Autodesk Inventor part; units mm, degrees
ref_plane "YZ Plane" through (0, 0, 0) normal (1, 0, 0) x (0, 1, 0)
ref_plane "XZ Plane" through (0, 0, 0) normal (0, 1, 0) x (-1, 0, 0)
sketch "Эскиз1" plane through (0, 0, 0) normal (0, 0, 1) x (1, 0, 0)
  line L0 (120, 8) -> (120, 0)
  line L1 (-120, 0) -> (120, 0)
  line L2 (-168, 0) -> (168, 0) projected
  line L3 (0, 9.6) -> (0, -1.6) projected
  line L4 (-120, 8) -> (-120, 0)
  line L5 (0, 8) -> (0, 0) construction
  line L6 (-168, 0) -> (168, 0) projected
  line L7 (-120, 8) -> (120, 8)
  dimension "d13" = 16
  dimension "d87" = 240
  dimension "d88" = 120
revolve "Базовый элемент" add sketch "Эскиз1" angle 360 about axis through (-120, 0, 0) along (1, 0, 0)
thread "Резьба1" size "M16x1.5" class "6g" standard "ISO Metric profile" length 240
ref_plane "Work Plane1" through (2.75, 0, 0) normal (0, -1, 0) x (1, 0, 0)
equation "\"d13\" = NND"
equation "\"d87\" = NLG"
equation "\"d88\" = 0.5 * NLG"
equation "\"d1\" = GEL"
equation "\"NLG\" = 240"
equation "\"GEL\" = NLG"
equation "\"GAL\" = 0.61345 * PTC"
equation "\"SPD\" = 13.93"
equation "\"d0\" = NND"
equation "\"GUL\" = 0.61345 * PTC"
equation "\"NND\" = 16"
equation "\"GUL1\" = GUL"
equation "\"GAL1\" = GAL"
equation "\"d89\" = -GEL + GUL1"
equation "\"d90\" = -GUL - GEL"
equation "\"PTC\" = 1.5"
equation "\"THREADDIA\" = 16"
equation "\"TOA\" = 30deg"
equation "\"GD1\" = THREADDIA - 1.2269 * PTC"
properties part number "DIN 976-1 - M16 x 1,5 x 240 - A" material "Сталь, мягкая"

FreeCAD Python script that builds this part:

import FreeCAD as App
import Part
import Sketcher
from FreeCAD import Vector
Q = App.Units.Quantity

doc = App.newDocument("Part")
body = doc.addObject("PartDesign::Body", "Body")

# Sketch on XY plane
sketch1 = doc.addObject("Sketcher::SketchObject", "Sketch")
body.addObject(sketch1)
sketch1.AttachmentSupport = (doc.XY_Plane, [""])
sketch1.MapMode = "FlatFace"
sketch1.addGeometry(Part.LineSegment(Vector(120, 0, 0), Vector(120, 8, 0)), False)
sketch1.addGeometry(Part.LineSegment(Vector(120, 8, 0), Vector(-120, 8, 0)), False)
sketch1.addGeometry(Part.LineSegment(Vector(-120, 8, 0), Vector(-120, 0, 0)), False)
sketch1.addGeometry(Part.LineSegment(Vector(-120, 0, 0), Vector(120, 0, 0)), False)
sketch1.addConstraint(Sketcher.Constraint("Coincident", 0, 2, 1, 1))
sketch1.addConstraint(Sketcher.Constraint("Coincident", 1, 2, 2, 1))
sketch1.addConstraint(Sketcher.Constraint("Coincident", 2, 2, 3, 1))
sketch1.addConstraint(Sketcher.Constraint("Coincident", 3, 2, 0, 1))
sketch1.addConstraint(Sketcher.Constraint("Vertical", 0))
sketch1.addConstraint(Sketcher.Constraint("Horizontal", 1))
sketch1.addConstraint(Sketcher.Constraint("Vertical", 2))
sketch1.addConstraint(Sketcher.Constraint("Horizontal", 3))
sketch1.addConstraint(Sketcher.Constraint("Symmetric", 2, 2, 3, 2, -1, 1))
sketch1.addConstraint(Sketcher.Constraint("DistanceX", 1, 2, 1, 1, Q("240 mm")))
sketch1.addConstraint(Sketcher.Constraint("DistanceY", 0, 1, 0, 2, Q("8 mm")))
revolution = doc.addObject("PartDesign::Revolution", "Revolution")
body.addObject(revolution)
revolution.Profile = sketch1
revolution.ReferenceAxis = (sketch1, ["H_Axis"])
revolution.Angle = 360

doc.recompute()
